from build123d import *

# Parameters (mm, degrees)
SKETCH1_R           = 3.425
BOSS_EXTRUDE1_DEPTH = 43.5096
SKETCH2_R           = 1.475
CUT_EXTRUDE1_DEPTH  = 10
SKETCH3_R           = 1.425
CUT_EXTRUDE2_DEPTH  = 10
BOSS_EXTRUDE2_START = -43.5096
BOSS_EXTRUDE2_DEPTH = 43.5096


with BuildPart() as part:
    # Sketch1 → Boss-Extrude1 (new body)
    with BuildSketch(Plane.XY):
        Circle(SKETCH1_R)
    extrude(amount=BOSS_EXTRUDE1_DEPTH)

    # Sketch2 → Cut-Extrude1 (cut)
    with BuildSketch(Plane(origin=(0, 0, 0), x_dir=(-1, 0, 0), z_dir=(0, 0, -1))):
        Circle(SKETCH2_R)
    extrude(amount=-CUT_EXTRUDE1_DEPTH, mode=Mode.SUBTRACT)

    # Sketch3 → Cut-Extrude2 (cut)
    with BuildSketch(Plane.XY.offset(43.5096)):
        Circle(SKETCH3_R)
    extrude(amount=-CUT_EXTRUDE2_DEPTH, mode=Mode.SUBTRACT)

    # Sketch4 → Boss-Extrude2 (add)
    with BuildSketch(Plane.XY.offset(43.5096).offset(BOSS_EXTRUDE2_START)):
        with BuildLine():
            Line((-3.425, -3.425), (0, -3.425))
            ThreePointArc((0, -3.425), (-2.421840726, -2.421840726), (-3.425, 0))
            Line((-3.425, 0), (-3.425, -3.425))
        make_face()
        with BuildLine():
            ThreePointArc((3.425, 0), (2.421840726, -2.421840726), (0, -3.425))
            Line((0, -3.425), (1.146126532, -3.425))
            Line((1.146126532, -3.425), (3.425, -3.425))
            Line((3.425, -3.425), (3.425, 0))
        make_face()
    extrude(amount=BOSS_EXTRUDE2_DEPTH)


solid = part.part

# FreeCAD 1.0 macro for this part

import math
import FreeCAD as App
import Part
import Sketcher

V = App.Vector
Q = App.Units.Quantity

doc = App.newDocument("Part")
body = doc.addObject("PartDesign::Body", "Body")

# Sketch on XY plane
sketch1 = body.newObject("Sketcher::SketchObject", "Sketch")
sketch1.AttachmentSupport = (doc.getObject("XY_Plane"), [""])
sketch1.MapMode = "FlatFace"
sketch1.addGeometry(Part.Circle(V(0, 0, 0), V(0, 0, 1), 3.425), False)
sketch1.addConstraint([
    Sketcher.Constraint("Coincident", 0, 3, -1, 1),
    Sketcher.Constraint("Diameter", 0, Q("6.85 mm")),
])
pad1 = body.newObject("PartDesign::Pad", "Pad")
pad1.Profile = sketch1
pad1.Length = 43.5096

# Sketch on XY plane
sketch2 = body.newObject("Sketcher::SketchObject", "Sketch001")
sketch2.AttachmentSupport = (doc.getObject("XY_Plane"), [""])
sketch2.MapMode = "FlatFace"
sketch2.addGeometry(Part.Circle(V(0, 0, 0), V(0, 0, 1), 1.475), False)
sketch2.addConstraint([
    Sketcher.Constraint("Coincident", 0, 3, -1, 1),
    Sketcher.Constraint("Diameter", 0, Q("2.95 mm")),
])
pocket1 = body.newObject("PartDesign::Pocket", "Pocket")
pocket1.Profile = sketch2
pocket1.Length = 10
pocket1.Reversed = True

# Sketch on XY plane
sketch3 = body.newObject("Sketcher::SketchObject", "Sketch002")
sketch3.AttachmentSupport = (doc.getObject("XY_Plane"), [""])
sketch3.MapMode = "FlatFace"
sketch3.AttachmentOffset = App.Placement(V(0, 0, 43.5096), App.Rotation())
sketch3.addGeometry(Part.Circle(V(0, 0, 0), V(0, 0, 1), 1.425), False)
sketch3.addConstraint([
    Sketcher.Constraint("Coincident", 0, 3, -1, 1),
    Sketcher.Constraint("Diameter", 0, Q("2.85 mm")),
])
pocket2 = body.newObject("PartDesign::Pocket", "Pocket001")
pocket2.Profile = sketch3
pocket2.Length = 10

# Sketch on XY plane
sketch4 = body.newObject("Sketcher::SketchObject", "Sketch003")
sketch4.AttachmentSupport = (doc.getObject("XY_Plane"), [""])
sketch4.MapMode = "FlatFace"
sketch4.addGeometry([
    Part.LineSegment(V(-3.425, -3.425, 0), V(0, -3.425, 0)),  # 0
    Part.ArcOfCircle(Part.Circle(V(0, 0, 0), V(0, 0, 1), 3.425), math.radians(180), math.radians(270)),  # 1
    Part.LineSegment(V(-3.425, 0, 0), V(-3.425, -3.425, 0)),  # 2
    Part.ArcOfCircle(Part.Circle(V(0, 0, 0), V(0, 0, 1), 3.425), math.radians(-90), math.radians(0)),  # 3
    Part.LineSegment(V(0, -3.425, 0), V(3.425, -3.425, 0)),  # 4
    Part.LineSegment(V(3.425, -3.425, 0), V(3.425, 0, 0)),  # 5
], False)
sketch4.addConstraint([
    Sketcher.Constraint("Tangent", 0, 2, 1, 2),
    Sketcher.Constraint("Tangent", 1, 1, 2, 1),
    Sketcher.Constraint("Coincident", 2, 2, 0, 1),
    Sketcher.Constraint("Tangent", 3, 1, 4, 1),
    Sketcher.Constraint("Coincident", 4, 2, 5, 1),
    Sketcher.Constraint("Tangent", 5, 2, 3, 2),
    Sketcher.Constraint("Horizontal", 0),
    Sketcher.Constraint("Vertical", 2),
    Sketcher.Constraint("Horizontal", 4),
    Sketcher.Constraint("Vertical", 5),
    Sketcher.Constraint("Coincident", 1, 3, -1, 1),
    Sketcher.Constraint("Coincident", 3, 3, -1, 1),
    Sketcher.Constraint("Equal", 1, 3),
    Sketcher.Constraint("Radius", 1, Q("3.425 mm")),
])
pad2 = body.newObject("PartDesign::Pad", "Pad001")
pad2.Profile = sketch4
pad2.Length = 43.5096

doc.recompute()
